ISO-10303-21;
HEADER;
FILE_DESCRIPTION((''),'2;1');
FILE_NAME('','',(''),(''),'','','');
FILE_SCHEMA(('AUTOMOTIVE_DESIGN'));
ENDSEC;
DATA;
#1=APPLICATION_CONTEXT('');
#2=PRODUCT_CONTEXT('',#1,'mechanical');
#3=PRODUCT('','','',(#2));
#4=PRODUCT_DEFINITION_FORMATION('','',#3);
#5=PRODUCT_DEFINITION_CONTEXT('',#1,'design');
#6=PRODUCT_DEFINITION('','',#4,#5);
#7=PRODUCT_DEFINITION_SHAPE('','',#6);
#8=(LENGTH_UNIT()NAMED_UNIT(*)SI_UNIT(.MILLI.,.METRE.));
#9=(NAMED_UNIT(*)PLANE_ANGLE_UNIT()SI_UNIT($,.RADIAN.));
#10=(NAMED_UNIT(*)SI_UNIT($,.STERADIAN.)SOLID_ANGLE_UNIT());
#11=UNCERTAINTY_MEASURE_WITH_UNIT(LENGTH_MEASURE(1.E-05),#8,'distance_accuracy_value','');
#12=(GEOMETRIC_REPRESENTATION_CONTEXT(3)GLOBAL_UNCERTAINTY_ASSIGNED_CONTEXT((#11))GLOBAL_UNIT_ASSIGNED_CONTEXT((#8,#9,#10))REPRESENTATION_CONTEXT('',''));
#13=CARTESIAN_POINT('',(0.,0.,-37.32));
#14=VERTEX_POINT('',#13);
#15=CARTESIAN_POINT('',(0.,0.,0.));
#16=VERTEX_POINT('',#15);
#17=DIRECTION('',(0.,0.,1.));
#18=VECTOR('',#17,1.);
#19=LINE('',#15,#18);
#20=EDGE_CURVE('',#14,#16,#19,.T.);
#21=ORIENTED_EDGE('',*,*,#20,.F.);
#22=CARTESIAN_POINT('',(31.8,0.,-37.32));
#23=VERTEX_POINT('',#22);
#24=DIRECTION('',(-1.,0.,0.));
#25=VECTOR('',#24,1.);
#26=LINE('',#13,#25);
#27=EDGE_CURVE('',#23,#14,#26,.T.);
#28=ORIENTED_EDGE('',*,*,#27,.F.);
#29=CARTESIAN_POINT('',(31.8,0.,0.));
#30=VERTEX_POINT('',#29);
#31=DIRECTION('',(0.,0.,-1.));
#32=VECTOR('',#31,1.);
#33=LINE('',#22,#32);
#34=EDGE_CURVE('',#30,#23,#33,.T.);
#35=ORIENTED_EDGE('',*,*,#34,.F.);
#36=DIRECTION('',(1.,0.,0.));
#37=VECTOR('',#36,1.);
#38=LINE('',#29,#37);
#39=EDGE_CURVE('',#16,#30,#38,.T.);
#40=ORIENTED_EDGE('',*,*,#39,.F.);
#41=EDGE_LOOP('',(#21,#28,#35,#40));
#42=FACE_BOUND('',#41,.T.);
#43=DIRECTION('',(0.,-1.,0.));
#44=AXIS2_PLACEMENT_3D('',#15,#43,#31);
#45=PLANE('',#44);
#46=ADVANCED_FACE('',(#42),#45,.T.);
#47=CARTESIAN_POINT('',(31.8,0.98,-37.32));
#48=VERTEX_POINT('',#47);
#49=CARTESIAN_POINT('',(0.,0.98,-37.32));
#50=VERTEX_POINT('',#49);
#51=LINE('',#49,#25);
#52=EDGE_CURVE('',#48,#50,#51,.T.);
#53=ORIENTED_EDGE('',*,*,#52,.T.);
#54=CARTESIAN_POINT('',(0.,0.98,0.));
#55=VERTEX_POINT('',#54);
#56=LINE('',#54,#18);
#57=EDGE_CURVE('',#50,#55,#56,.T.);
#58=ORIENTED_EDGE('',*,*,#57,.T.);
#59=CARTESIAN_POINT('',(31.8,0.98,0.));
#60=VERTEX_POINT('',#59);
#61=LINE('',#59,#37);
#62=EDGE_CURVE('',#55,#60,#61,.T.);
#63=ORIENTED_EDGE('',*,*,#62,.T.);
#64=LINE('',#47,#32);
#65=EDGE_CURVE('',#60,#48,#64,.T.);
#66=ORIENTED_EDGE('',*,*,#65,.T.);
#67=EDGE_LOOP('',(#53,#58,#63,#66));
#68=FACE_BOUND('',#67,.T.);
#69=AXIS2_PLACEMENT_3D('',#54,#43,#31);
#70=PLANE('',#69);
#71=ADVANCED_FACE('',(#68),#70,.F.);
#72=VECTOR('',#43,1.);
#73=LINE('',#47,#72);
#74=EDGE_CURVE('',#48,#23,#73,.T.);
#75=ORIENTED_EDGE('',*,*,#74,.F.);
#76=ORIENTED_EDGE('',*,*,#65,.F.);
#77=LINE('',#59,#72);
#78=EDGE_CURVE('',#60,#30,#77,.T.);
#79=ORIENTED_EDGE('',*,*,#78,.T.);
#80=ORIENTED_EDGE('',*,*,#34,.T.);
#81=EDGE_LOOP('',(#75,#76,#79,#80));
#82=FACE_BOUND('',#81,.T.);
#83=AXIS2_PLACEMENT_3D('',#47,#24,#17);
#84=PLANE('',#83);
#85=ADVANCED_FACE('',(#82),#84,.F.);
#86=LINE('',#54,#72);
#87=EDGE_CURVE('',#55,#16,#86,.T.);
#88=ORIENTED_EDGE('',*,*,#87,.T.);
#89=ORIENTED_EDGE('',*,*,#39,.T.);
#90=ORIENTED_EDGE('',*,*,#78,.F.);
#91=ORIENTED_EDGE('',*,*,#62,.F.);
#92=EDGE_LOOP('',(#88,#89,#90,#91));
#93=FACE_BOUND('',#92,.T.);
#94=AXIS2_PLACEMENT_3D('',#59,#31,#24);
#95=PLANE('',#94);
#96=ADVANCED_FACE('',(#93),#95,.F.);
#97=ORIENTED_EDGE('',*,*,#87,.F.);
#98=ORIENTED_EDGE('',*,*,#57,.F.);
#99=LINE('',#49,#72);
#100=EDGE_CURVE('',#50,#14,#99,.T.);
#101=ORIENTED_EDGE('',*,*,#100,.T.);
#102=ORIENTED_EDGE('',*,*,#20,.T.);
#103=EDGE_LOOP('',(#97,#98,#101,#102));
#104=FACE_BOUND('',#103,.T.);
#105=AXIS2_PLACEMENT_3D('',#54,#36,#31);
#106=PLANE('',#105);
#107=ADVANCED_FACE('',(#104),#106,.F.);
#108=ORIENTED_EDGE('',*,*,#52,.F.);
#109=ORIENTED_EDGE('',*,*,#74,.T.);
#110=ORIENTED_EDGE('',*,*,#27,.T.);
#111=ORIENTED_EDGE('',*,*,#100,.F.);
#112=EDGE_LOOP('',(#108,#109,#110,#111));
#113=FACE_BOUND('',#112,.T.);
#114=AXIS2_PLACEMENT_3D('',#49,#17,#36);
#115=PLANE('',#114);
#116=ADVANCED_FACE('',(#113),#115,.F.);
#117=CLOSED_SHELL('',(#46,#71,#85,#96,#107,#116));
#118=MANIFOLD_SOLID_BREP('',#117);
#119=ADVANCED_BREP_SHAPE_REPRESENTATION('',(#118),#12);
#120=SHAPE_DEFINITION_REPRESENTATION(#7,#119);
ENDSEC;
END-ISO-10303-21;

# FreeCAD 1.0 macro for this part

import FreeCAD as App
import Part
import Sketcher
Q = App.Units.Quantity


def add_polygon(sketch, points):
    """Adds a closed chain of lines whose ends are joined by coincident constraints."""
    first, n = sketch.GeometryCount, len(points)
    for a, b in zip(points, points[1:] + points[:1]):
        sketch.addGeometry(Part.LineSegment(App.Vector(*a, 0), App.Vector(*b, 0)), False)
    for i in range(n):
        sketch.addConstraint(Sketcher.Constraint("Coincident", first + i, 2, first + (i + 1) % n, 1))

doc = App.newDocument("Part")
body = doc.addObject("PartDesign::Body", "Body")

# Sketch on XZ plane
sketch1 = body.newObject("Sketcher::SketchObject", "Sketch")
sketch1.AttachmentSupport = (doc.getObject("XZ_Plane"), [""])
sketch1.MapMode = "FlatFace"
add_polygon(sketch1, [(0, -37), (0, 0), (32, 0), (32, -37)])  # lines 0-3
sketch1.addConstraint([
    Sketcher.Constraint("Vertical", 0),
    Sketcher.Constraint("Horizontal", 1),
    Sketcher.Constraint("Vertical", 2),
    Sketcher.Constraint("Horizontal", 3),
    Sketcher.Constraint("Coincident", 0, 2, -1, 1),
    Sketcher.Constraint("DistanceX", 1, 1, 1, 2, Q("31.8 mm")),
    Sketcher.Constraint("DistanceY", 0, 1, 0, 2, Q("37.32 mm")),
])
pad1 = body.newObject("PartDesign::Pad", "Pad")
pad1.Profile = sketch1
pad1.Length = 0.98
pad1.Reversed = True

doc.recompute()
